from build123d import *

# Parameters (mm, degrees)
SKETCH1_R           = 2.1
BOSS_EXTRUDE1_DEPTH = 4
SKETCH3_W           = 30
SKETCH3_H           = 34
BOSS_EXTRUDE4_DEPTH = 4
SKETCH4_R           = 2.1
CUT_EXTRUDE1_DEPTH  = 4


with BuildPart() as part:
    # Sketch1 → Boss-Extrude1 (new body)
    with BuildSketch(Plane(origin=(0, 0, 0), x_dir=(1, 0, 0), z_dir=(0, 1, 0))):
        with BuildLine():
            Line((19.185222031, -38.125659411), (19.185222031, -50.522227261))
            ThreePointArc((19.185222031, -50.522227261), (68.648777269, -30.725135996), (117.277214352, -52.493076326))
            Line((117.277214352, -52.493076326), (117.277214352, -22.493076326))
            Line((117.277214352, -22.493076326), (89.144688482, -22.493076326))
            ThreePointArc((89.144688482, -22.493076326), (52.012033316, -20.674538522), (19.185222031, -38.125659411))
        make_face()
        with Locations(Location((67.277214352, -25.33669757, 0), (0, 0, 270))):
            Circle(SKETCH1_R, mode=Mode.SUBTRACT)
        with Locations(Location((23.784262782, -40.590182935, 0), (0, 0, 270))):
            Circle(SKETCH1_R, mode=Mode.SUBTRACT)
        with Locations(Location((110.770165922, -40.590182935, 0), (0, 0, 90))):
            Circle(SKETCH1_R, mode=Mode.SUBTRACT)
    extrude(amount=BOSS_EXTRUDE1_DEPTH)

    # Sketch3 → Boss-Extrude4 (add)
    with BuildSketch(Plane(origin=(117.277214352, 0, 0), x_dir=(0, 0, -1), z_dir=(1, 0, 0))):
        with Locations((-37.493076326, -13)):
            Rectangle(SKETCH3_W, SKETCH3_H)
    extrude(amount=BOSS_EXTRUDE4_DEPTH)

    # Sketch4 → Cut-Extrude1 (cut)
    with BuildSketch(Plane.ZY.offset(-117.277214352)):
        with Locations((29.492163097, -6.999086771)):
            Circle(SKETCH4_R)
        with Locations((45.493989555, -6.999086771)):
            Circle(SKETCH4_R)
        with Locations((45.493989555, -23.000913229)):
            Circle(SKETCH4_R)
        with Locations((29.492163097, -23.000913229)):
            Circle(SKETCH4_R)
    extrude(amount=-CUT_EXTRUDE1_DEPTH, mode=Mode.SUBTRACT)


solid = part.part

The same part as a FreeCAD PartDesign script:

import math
import FreeCAD as App
import Part
import Sketcher
Q = App.Units.Quantity


def add_polygon(sketch, points):
    """Adds a closed chain of lines whose ends are joined by coincident constraints."""
    first, n = sketch.GeometryCount, len(points)
    for a, b in zip(points, points[1:] + points[:1]):
        sketch.addGeometry(Part.LineSegment(App.Vector(*a, 0), App.Vector(*b, 0)), False)
    for i in range(n):
        sketch.addConstraint(Sketcher.Constraint("Coincident", first + i, 2, first + (i + 1) % n, 1))

doc = App.newDocument("Part")
params = doc.addObject("Spreadsheet::Sheet", "Params")
for row, (alias, value) in enumerate([
    ("sketch1_radius", "70 mm"),
    ("sketch1_diameter", "4.2 mm"),
    ("sketch1_height", "30 mm"),
    ("pad1_length", "4 mm"),
    ("sketch2_width", "34 mm"),
    ("sketch2_height", "30 mm"),
    ("pad2_length", "4 mm"),
    ("sketch3_diameter", "4.2 mm"),
    ("pocket1_length", "4 mm"),
], start=1):
    params.set(f"A{row}", alias)
    params.set(f"B{row}", "=" + value)
    params.setAlias(f"B{row}", alias)

body = doc.addObject("PartDesign::Body", "Body")

# Sketch on XZ plane
sketch1 = body.newObject("Sketcher::SketchObject", "Sketch")
sketch1.AttachmentSupport = (doc.getObject("XZ_Plane"), [""])
sketch1.MapMode = "FlatFace"
sketch1.addGeometry([
    Part.LineSegment(App.Vector(19.2, 38.1, 0), App.Vector(19.2, 50.5, 0)),  # 0
    Part.ArcOfCircle(Part.Circle(App.Vector(67.3, 99, 0), App.Vector(0, 0, 1), 68.3), math.radians(-135), math.radians(-43)),  # 1
    Part.LineSegment(App.Vector(117.3, 52.5, 0), App.Vector(117.3, 22.5, 0)),  # 2
    Part.LineSegment(App.Vector(117.3, 22.5, 0), App.Vector(89.1, 22.5, 0)),  # 3
    Part.ArcOfCircle(Part.Circle(App.Vector(67.3, 89, 0), App.Vector(0, 0, 1), 70), math.radians(-133), math.radians(-72)),  # 4
    Part.Circle(App.Vector(23.8, 40.6, 0), App.Vector(0, 0, 1), 2.1),  # 5
    Part.Circle(App.Vector(110.8, 40.6, 0), App.Vector(0, 0, 1), 2.1),  # 6
    Part.Circle(App.Vector(67.3, 25.3, 0), App.Vector(0, 0, 1), 2.1),  # 7
], False)
sketch1.addConstraint([
    Sketcher.Constraint("Coincident", 0, 2, 1, 1),
    Sketcher.Constraint("Coincident", 1, 2, 2, 1),
    Sketcher.Constraint("Coincident", 2, 2, 3, 1),
    Sketcher.Constraint("Coincident", 3, 2, 4, 2),
    Sketcher.Constraint("Coincident", 4, 1, 0, 1),
    Sketcher.Constraint("Vertical", 0),
    Sketcher.Constraint("Vertical", 2),
    Sketcher.Constraint("Horizontal", 3),
    Sketcher.Constraint("Equal", 5, 6),
    Sketcher.Constraint("Equal", 6, 7),
    Sketcher.Constraint("Horizontal", 5, 3, 6, 3),
    Sketcher.Constraint("Vertical", 1, 3, 4, 3),
    Sketcher.Constraint("Vertical", 4, 3, 7, 3),
    Sketcher.Constraint("Radius", 4, Q("70 mm")),
    Sketcher.Constraint("Diameter", 5, Q("4.2 mm")),
    Sketcher.Constraint("DistanceY", 2, 2, 2, 1, Q("30 mm")),
    Sketcher.Constraint("DistanceY", 4, 3, 1, 3, Q("10 mm")),
    Sketcher.Constraint("DistanceX", 7, 3, 1, 2, Q("50 mm")),
    Sketcher.Constraint("Radius", 1, Q("68.278436 mm")),
    Sketcher.Constraint("DistanceY", 0, 1, 0, 2, Q("12.396568 mm")),
    Sketcher.Constraint("DistanceX", -1, 1, 3, 2, Q("89.144688 mm")),
    Sketcher.Constraint("DistanceY", -1, 1, 4, 1, Q("38.125659 mm")),
    Sketcher.Constraint("DistanceX", 5, 3, 4, 3, Q("43.492952 mm")),
    Sketcher.Constraint("DistanceY", 5, 3, 4, 3, Q("48.399612 mm")),
    Sketcher.Constraint("DistanceX", 4, 3, 6, 3, Q("43.492952 mm")),
    Sketcher.Constraint("DistanceY", 7, 3, 0, 2, Q("25.18553 mm")),
])
sketch1.setExpression("Constraints[13]", "Params.sketch1_radius")
sketch1.setExpression("Constraints[14]", "Params.sketch1_diameter")
sketch1.setExpression("Constraints[15]", "Params.sketch1_height")
pad1 = body.newObject("PartDesign::Pad", "Pad")
pad1.Profile = sketch1
pad1.setExpression("Length", "Params.pad1_length")
pad1.Reversed = True

# Sketch on YZ plane
sketch2 = body.newObject("Sketcher::SketchObject", "Sketch001")
sketch2.AttachmentSupport = (doc.getObject("YZ_Plane"), [""])
sketch2.MapMode = "FlatFace"
sketch2.AttachmentOffset = App.Placement(App.Vector(0, 0, 117.277214), App.Rotation())
add_polygon(sketch2, [(4, 52), (-30, 52), (-30, 22), (4, 22)])  # lines 0-3
sketch2.addConstraint([
    Sketcher.Constraint("Horizontal", 0),
    Sketcher.Constraint("Vertical", 1),
    Sketcher.Constraint("Horizontal", 2),
    Sketcher.Constraint("Vertical", 3),
    Sketcher.Constraint("DistanceX", 0, 2, 0, 1, Q("34 mm")),
    Sketcher.Constraint("DistanceY", 1, 2, 1, 1, Q("30 mm")),
    Sketcher.Constraint("DistanceX", 0, 2, -1, 1, Q("30 mm")),
    Sketcher.Constraint("DistanceY", -1, 1, 0, 2, Q("52.493076 mm")),
])
sketch2.setExpression("Constraints[8]", "Params.sketch2_width")
sketch2.setExpression("Constraints[9]", "Params.sketch2_height")
pad2 = body.newObject("PartDesign::Pad", "Pad001")
pad2.Profile = sketch2
pad2.setExpression("Length", "Params.pad2_length")

# Sketch on YZ plane
sketch3 = body.newObject("Sketcher::SketchObject", "Sketch002")
sketch3.AttachmentSupport = (doc.getObject("YZ_Plane"), [""])
sketch3.MapMode = "FlatFace"
sketch3.AttachmentOffset = App.Placement(App.Vector(0, 0, 117.277214), App.Rotation())
sketch3.addGeometry([
    Part.Circle(App.Vector(-7, 29.5, 0), App.Vector(0, 0, 1), 2.1),
    Part.Circle(App.Vector(-7, 45.5, 0), App.Vector(0, 0, 1), 2.1),
    Part.Circle(App.Vector(-23, 45.5, 0), App.Vector(0, 0, 1), 2.1),
    Part.Circle(App.Vector(-23, 29.5, 0), App.Vector(0, 0, 1), 2.1),
], False)
sketch3.addConstraint([
    Sketcher.Constraint("Equal", 0, 1),
    Sketcher.Constraint("Equal", 1, 2),
    Sketcher.Constraint("Equal", 2, 3),
    Sketcher.Constraint("Horizontal", 1, 3, 2, 3),
    Sketcher.Constraint("Horizontal", 0, 3, 3, 3),
    Sketcher.Constraint("Vertical", 0, 3, 1, 3),
    Sketcher.Constraint("Vertical", 2, 3, 3, 3),
    Sketcher.Constraint("Diameter", 0, Q("4.2 mm")),
    Sketcher.Constraint("DistanceY", -1, 1, 1, 3, Q("45.49399 mm")),
    Sketcher.Constraint("DistanceX", 0, 3, -1, 1, Q("6.999087 mm")),
    Sketcher.Constraint("DistanceY", -1, 1, 0, 3, Q("29.492163 mm")),
    Sketcher.Constraint("DistanceX", 2, 3, -1, 1, Q("23.000913 mm")),
])
sketch3.setExpression("Constraints[7]", "Params.sketch3_diameter")
pocket1 = body.newObject("PartDesign::Pocket", "Pocket")
pocket1.Profile = sketch3
pocket1.setExpression("Length", "Params.pocket1_length")
pocket1.Reversed = True

doc.recompute()
